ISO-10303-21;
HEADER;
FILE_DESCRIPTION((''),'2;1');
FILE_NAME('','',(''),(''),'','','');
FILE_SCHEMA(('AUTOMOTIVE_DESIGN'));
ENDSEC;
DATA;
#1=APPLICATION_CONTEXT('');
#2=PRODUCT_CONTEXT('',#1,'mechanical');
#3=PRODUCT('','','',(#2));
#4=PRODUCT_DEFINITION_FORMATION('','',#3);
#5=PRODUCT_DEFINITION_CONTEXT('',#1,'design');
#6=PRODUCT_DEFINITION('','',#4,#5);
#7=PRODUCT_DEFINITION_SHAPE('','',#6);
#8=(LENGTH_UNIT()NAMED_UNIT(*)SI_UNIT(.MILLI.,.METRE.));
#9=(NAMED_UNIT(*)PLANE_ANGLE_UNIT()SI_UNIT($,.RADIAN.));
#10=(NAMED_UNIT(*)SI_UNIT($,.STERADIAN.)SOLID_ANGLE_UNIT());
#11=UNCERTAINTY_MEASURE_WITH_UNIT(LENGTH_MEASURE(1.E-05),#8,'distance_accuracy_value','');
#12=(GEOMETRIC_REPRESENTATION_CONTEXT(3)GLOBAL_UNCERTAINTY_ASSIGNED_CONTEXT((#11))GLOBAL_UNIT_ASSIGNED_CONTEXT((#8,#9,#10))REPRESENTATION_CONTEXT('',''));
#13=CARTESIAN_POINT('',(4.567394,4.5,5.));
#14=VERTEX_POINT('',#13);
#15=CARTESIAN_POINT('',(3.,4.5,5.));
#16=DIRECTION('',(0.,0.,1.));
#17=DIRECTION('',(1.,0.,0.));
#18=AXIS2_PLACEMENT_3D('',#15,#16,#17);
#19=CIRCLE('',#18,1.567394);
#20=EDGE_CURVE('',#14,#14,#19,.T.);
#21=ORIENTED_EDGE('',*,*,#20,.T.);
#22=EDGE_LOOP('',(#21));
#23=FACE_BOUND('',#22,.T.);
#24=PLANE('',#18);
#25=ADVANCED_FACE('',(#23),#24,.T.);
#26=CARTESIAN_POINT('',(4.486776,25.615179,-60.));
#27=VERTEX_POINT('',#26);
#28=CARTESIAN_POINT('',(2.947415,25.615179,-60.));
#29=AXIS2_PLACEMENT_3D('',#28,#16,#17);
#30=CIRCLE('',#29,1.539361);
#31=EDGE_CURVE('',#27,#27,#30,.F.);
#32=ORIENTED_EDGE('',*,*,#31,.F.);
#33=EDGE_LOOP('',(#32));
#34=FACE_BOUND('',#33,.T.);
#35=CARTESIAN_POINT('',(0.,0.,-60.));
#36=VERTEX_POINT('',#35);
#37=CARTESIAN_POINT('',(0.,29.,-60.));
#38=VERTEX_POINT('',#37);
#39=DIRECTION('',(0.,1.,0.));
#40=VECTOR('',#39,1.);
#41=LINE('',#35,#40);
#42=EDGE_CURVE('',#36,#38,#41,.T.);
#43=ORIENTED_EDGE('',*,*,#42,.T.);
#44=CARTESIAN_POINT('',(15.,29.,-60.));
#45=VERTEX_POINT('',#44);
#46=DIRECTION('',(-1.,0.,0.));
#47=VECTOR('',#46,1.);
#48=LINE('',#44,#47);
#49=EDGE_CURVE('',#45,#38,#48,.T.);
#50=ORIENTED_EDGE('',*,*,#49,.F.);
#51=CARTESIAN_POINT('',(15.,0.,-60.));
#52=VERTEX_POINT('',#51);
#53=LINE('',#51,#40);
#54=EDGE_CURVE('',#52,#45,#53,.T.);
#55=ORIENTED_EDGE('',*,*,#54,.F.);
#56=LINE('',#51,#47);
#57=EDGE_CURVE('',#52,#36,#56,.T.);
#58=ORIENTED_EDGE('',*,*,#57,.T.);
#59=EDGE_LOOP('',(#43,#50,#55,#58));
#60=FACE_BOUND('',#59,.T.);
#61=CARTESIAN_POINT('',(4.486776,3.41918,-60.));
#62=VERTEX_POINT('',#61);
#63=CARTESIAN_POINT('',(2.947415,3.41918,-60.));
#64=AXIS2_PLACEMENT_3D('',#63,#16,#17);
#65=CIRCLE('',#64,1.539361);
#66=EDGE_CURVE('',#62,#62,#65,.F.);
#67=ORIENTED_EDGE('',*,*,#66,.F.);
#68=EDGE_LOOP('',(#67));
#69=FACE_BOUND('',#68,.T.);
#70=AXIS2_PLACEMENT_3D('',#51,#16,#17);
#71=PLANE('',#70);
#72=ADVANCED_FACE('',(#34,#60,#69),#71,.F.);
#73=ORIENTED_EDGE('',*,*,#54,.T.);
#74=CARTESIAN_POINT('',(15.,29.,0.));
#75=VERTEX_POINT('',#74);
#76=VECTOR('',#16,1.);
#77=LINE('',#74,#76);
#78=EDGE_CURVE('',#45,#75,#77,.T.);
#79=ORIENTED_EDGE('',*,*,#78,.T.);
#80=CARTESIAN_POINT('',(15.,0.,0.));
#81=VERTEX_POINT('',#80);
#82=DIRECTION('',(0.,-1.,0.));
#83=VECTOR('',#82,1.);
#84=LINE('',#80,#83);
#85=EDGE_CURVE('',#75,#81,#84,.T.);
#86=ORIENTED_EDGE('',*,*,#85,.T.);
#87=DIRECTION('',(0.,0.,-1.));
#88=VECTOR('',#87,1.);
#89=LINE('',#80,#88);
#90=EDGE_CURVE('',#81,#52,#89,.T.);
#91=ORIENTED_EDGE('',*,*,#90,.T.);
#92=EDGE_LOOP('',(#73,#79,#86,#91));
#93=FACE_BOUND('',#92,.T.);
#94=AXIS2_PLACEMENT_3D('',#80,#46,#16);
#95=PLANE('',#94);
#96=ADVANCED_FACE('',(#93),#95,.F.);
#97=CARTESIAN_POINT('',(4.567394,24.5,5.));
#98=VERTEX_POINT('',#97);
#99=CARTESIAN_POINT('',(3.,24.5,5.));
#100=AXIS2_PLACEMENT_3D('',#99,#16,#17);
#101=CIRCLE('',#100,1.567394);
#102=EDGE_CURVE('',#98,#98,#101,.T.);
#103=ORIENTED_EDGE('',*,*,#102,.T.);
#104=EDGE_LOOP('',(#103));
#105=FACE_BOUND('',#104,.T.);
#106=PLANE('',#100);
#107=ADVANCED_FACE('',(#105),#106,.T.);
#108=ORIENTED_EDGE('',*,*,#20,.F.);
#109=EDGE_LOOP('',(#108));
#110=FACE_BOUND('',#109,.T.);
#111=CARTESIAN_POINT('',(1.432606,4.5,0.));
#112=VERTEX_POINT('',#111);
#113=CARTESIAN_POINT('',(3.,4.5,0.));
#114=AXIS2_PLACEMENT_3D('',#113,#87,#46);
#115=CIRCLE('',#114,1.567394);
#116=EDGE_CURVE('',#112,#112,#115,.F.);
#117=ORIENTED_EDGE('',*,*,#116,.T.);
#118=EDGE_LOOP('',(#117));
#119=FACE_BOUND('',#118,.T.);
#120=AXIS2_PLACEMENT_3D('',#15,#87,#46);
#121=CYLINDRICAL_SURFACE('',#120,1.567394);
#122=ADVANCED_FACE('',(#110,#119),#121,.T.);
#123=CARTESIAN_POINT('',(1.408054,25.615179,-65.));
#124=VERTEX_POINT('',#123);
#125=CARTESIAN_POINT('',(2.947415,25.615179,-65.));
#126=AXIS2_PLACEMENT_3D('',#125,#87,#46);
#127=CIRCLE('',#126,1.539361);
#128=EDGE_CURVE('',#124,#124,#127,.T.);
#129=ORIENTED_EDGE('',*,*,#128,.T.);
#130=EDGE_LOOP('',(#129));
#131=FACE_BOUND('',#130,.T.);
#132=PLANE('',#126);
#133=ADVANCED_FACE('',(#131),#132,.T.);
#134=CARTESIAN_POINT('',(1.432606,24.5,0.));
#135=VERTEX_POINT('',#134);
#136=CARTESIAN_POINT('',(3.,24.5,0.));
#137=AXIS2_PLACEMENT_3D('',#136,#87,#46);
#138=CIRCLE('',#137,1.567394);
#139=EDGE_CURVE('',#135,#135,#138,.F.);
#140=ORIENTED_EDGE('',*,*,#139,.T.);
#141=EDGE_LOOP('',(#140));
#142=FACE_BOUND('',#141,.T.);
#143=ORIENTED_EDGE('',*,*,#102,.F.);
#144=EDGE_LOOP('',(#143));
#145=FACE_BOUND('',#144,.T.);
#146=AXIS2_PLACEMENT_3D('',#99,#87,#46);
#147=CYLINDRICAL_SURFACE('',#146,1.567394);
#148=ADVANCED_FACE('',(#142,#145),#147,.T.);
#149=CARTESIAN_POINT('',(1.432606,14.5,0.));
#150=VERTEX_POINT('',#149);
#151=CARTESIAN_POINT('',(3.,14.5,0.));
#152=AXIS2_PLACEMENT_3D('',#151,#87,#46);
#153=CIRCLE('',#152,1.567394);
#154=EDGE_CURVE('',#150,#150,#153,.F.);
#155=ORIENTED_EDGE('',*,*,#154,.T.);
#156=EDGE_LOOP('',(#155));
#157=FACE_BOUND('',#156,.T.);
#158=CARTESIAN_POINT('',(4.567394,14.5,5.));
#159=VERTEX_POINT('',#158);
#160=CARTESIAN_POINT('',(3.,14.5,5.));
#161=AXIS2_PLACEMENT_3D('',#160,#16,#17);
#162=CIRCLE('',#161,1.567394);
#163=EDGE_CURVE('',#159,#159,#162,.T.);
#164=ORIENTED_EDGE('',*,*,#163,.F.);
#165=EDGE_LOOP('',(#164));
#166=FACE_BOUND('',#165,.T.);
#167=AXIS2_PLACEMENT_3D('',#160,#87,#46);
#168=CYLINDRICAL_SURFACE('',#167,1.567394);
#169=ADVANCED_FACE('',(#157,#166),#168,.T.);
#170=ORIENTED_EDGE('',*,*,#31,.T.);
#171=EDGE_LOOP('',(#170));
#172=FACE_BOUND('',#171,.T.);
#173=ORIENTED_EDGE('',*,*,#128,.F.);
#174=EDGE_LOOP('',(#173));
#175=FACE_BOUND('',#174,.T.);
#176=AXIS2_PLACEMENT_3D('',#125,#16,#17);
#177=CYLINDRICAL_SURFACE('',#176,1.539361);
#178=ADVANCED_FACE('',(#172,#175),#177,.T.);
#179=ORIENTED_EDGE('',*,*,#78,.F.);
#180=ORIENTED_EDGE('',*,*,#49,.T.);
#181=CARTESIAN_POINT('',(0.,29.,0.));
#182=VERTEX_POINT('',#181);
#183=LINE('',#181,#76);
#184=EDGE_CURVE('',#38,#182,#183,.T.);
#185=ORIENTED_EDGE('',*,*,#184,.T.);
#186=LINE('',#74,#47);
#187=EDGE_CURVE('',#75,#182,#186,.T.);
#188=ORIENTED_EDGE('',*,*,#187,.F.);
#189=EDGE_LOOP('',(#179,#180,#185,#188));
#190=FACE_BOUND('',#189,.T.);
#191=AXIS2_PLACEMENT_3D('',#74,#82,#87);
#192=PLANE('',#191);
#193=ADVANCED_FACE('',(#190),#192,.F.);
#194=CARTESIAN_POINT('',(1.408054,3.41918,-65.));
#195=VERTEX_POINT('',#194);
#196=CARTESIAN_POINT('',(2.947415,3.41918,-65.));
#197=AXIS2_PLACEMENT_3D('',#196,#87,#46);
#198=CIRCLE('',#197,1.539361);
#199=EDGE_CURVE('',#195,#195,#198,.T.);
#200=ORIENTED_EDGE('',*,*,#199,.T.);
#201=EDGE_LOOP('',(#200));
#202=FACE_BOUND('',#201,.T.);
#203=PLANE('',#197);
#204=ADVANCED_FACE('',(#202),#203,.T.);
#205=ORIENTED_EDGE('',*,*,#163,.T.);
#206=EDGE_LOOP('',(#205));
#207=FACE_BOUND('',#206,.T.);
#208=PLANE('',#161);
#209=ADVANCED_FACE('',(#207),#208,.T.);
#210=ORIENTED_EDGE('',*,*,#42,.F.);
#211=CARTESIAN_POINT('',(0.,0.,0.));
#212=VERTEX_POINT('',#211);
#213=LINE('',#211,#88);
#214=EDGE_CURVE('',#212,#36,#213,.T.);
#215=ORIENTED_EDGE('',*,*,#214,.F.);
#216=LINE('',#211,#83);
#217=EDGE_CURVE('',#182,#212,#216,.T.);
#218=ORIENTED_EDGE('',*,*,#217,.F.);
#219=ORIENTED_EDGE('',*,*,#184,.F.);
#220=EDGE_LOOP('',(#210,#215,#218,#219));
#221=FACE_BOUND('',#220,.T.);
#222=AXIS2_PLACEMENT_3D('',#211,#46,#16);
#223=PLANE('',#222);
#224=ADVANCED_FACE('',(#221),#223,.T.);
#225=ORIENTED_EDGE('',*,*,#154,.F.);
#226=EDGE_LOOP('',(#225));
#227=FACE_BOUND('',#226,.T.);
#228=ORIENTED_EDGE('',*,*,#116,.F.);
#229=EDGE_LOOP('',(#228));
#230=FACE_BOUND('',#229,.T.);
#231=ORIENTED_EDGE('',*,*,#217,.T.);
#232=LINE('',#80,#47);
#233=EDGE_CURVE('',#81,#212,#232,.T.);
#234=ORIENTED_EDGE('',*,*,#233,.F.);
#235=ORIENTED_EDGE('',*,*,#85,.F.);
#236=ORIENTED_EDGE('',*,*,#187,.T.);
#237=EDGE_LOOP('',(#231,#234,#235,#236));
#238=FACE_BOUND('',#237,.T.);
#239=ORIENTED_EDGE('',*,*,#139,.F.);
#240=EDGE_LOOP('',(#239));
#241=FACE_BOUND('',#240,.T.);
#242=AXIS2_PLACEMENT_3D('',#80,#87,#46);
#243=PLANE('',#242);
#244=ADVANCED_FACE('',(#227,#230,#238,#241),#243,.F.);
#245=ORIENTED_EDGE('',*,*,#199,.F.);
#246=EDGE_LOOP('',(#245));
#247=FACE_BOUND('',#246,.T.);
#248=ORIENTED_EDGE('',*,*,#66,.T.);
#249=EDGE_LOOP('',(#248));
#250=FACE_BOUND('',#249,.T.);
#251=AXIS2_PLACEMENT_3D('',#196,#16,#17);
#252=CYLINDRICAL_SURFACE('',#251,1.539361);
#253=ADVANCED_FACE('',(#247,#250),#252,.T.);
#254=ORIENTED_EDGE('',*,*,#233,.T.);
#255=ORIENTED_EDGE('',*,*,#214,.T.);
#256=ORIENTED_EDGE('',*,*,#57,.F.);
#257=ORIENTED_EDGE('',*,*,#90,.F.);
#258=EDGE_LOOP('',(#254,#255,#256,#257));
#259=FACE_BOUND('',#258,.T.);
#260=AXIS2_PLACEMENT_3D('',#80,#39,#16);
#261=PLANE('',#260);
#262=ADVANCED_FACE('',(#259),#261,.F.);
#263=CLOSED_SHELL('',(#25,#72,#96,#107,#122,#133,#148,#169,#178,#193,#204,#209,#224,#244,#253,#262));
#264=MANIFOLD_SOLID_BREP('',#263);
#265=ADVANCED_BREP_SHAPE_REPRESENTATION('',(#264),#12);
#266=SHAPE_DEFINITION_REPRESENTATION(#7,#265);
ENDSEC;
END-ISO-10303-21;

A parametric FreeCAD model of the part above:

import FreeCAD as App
import Part
import Sketcher
Q = App.Units.Quantity


def add_polygon(sketch, points):
    """Adds a closed chain of lines whose ends are joined by coincident constraints."""
    first, n = sketch.GeometryCount, len(points)
    for a, b in zip(points, points[1:] + points[:1]):
        sketch.addGeometry(Part.LineSegment(App.Vector(*a, 0), App.Vector(*b, 0)), False)
    for i in range(n):
        sketch.addConstraint(Sketcher.Constraint("Coincident", first + i, 2, first + (i + 1) % n, 1))

doc = App.newDocument("Part")
params = doc.addObject("Spreadsheet::Sheet", "Params")
for row, (alias, value) in enumerate([
    ("sketch1_width", "29 mm"),
    ("sketch1_height", "60 mm"),
    ("pad1_length", "15 mm"),
    ("pad2_length", "5 mm"),
    ("pad3_length", "5 mm"),
], start=1):
    params.set(f"A{row}", alias)
    params.set(f"B{row}", "=" + value)
    params.setAlias(f"B{row}", alias)

body = doc.addObject("PartDesign::Body", "Body")

# Sketch on YZ plane
sketch1 = doc.addObject("Sketcher::SketchObject", "Sketch")
body.addObject(sketch1)
sketch1.AttachmentSupport = (doc.YZ_Plane, [""])
sketch1.MapMode = "FlatFace"
add_polygon(sketch1, [(29, 0), (0, 0), (0, -60), (29, -60)])  # lines 0-3
sketch1.addConstraint([
    Sketcher.Constraint("Horizontal", 0),
    Sketcher.Constraint("Vertical", 1),
    Sketcher.Constraint("Horizontal", 2),
    Sketcher.Constraint("Vertical", 3),
    Sketcher.Constraint("Coincident", 0, 2, -1, 1),
    Sketcher.Constraint("DistanceX", 0, 2, 0, 1, Q("29 mm")),
    Sketcher.Constraint("DistanceY", 1, 2, 1, 1, Q("60 mm")),
])
sketch1.setExpression("Constraints[9]", "Params.sketch1_width")
sketch1.setExpression("Constraints[10]", "Params.sketch1_height")
pad1 = doc.addObject("PartDesign::Pad", "Pad")
body.addObject(pad1)
pad1.Profile = sketch1
pad1.setExpression("Length", "Params.pad1_length")

# Sketch on XY plane
sketch2 = doc.addObject("Sketcher::SketchObject", "Sketch001")
body.addObject(sketch2)
sketch2.AttachmentSupport = (doc.XY_Plane, [""])
sketch2.MapMode = "FlatFace"
sketch2.addGeometry([
    Part.Circle(App.Vector(3, 24.5, 0), App.Vector(0, 0, 1), 1.6),
    Part.Circle(App.Vector(3, 14.5, 0), App.Vector(0, 0, 1), 1.6),
    Part.Circle(App.Vector(3, 4.5, 0), App.Vector(0, 0, 1), 1.6),
], False)
sketch2.addConstraint([
    Sketcher.Constraint("Equal", 0, 1),
    Sketcher.Constraint("Equal", 1, 2),
    Sketcher.Constraint("Vertical", 0, 3, 1, 3),
    Sketcher.Constraint("Vertical", 1, 3, 2, 3),
    Sketcher.Constraint("DistanceX", -1, 1, 0, 3, Q("3 mm")),
    Sketcher.Constraint("DistanceY", 1, 3, 0, 3, Q("10 mm")),
    Sketcher.Constraint("DistanceY", 2, 3, 1, 3, Q("10 mm")),
    Sketcher.Constraint("DistanceY", -1, 1, 0, 3, Q("24.5 mm")),
    Sketcher.Constraint("Diameter", 0, Q("3.134788 mm")),
])
pad2 = doc.addObject("PartDesign::Pad", "Pad001")
body.addObject(pad2)
pad2.Profile = sketch2
pad2.setExpression("Length", "Params.pad2_length")

# Sketch on XY plane
sketch3 = doc.addObject("Sketcher::SketchObject", "Sketch002")
body.addObject(sketch3)
sketch3.AttachmentSupport = (doc.XY_Plane, [""])
sketch3.MapMode = "FlatFace"
sketch3.AttachmentOffset = App.Placement(App.Vector(0, 0, -60), App.Rotation())
sketch3.addGeometry([
    Part.Circle(App.Vector(2.9, 25.6, 0), App.Vector(0, 0, 1), 1.5),
    Part.Circle(App.Vector(2.9, 3.4, 0), App.Vector(0, 0, 1), 1.5),
], False)
sketch3.addConstraint([
    Sketcher.Constraint("Equal", 0, 1),
    Sketcher.Constraint("Vertical", 0, 3, 1, 3),
    Sketcher.Constraint("Diameter", 0, Q("3.078722 mm")),
    Sketcher.Constraint("DistanceY", 1, 3, 0, 3, Q("22.195999 mm")),
    Sketcher.Constraint("DistanceY", -1, 1, 0, 3, Q("25.615179 mm")),
    Sketcher.Constraint("DistanceX", -1, 1, 0, 3, Q("2.947415 mm")),
])
pad3 = doc.addObject("PartDesign::Pad", "Pad002")
body.addObject(pad3)
pad3.Profile = sketch3
pad3.setExpression("Length", "Params.pad3_length")
pad3.Reversed = True

doc.recompute()
